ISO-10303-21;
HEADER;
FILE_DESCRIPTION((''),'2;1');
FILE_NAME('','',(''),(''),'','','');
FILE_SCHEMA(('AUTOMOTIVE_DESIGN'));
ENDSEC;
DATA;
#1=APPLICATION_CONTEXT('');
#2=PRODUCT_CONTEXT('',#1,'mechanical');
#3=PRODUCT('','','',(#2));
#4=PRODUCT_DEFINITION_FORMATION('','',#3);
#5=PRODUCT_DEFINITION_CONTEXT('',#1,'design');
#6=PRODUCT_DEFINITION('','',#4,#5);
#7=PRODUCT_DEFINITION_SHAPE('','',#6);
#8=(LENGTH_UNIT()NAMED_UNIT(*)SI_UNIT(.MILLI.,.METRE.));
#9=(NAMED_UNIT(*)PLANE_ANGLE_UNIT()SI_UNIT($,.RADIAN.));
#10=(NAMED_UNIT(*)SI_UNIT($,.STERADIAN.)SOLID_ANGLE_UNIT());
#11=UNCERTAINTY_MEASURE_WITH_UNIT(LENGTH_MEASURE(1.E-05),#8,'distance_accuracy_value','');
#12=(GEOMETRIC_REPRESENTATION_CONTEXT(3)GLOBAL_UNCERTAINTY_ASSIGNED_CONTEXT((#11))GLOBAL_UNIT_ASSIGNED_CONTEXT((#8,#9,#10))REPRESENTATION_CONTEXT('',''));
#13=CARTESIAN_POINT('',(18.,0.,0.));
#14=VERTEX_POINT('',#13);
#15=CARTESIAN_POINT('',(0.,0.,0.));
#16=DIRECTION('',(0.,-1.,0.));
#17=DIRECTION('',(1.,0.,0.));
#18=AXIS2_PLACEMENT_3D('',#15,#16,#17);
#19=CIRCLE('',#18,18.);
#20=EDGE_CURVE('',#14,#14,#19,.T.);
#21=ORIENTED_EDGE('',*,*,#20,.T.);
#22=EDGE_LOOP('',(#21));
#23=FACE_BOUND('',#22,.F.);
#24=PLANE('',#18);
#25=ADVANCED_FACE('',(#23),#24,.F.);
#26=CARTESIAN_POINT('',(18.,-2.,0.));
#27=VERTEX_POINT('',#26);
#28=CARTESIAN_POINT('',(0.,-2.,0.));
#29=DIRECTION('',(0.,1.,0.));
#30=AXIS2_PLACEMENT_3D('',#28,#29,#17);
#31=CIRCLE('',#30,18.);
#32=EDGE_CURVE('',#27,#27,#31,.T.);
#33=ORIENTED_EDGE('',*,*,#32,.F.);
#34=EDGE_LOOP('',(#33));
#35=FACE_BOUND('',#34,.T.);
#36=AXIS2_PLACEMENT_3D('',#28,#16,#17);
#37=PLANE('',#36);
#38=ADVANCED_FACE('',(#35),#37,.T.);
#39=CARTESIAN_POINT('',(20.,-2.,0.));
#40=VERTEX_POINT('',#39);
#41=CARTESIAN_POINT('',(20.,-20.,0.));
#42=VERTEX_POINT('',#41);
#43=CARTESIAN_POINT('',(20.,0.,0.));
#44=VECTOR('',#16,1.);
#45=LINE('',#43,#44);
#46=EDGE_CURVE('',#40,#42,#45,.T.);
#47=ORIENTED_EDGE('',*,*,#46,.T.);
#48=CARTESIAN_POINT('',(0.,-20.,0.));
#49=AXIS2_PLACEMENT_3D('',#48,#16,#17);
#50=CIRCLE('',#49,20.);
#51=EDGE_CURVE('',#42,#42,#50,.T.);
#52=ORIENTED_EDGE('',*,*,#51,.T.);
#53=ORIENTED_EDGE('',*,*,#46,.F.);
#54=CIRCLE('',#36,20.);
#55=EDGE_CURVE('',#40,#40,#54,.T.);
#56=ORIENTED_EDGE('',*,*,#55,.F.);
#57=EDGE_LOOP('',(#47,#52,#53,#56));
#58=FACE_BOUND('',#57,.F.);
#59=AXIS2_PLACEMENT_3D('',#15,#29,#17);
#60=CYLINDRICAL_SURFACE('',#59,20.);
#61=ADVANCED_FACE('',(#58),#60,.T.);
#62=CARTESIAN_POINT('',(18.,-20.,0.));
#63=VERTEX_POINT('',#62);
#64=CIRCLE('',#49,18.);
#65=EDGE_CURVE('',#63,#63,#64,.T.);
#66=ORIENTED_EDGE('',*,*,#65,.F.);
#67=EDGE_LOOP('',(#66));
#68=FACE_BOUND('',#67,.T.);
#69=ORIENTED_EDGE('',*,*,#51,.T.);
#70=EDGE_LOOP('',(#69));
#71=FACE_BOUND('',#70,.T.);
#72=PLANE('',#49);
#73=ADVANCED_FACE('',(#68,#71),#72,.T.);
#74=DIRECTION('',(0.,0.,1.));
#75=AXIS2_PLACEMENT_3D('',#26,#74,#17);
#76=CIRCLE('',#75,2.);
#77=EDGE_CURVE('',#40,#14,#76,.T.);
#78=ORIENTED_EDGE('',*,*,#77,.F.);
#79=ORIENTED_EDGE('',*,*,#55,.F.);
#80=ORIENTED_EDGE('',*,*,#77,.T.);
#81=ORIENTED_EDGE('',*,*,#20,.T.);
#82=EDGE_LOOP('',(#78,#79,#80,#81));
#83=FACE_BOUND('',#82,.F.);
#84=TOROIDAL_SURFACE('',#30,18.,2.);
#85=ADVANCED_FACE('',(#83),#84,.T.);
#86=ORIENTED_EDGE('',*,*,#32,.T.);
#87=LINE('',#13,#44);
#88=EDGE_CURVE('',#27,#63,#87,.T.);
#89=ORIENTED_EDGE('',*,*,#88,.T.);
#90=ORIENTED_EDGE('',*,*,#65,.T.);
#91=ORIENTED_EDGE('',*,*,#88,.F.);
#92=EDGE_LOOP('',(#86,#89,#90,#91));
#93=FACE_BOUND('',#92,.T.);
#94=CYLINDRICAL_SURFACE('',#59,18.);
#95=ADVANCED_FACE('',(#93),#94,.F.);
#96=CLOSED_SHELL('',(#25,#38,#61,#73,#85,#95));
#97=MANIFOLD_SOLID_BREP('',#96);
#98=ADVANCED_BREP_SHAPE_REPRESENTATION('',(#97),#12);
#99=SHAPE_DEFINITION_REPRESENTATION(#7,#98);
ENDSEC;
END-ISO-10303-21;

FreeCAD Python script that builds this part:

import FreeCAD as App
import Part
import Sketcher
from FreeCAD import Vector


def edges_at(feature, points):
    """Names of the edges that pass closest to the given points."""
    edges = feature.Shape.Edges
    near = lambda p: min(range(len(edges)), key=lambda i: edges[i].distToShape(Part.Vertex(*p))[0])
    return sorted({f"Edge{near(p) + 1}" for p in points})


def faces_at(feature, points):
    """Names of the faces that lie closest to the given points."""
    faces = feature.Shape.Faces
    near = lambda p: min(range(len(faces)), key=lambda i: faces[i].distToShape(Part.Vertex(*p))[0])
    return sorted({f"Face{near(p) + 1}" for p in points})

doc = App.newDocument("Part")
params = doc.addObject("Spreadsheet::Sheet", "Params")
for row, (alias, value) in enumerate([
    ("sketch1_diameter", "40 mm"),
    ("pad1_length", "20 mm"),
    ("thickness_wall", "2 mm"),
    ("fillet_radius", "2 mm"),
], start=1):
    params.set(f"A{row}", alias)
    params.set(f"B{row}", "=" + value)
    params.setAlias(f"B{row}", alias)

body = doc.addObject("PartDesign::Body", "Body")

# Sketch on XZ plane
sketch1 = body.newObject("Sketcher::SketchObject", "Sketch")
sketch1.AttachmentSupport = (doc.getObject("XZ_Plane"), [""])
sketch1.MapMode = "FlatFace"
sketch1.addGeometry(Part.Circle(Vector(0, 0, 0), Vector(0, 0, 1), 20), False)
sketch1.addConstraint(Sketcher.Constraint("Coincident", 0, 3, -1, 1))
sketch1.addConstraint(Sketcher.Constraint("Diameter", 0, 40.0))
sketch1.setExpression("Constraints[1]", "Params.sketch1_diameter")
pad1 = body.newObject("PartDesign::Pad", "Pad")
pad1.Profile = sketch1
pad1.setExpression("Length", "Params.pad1_length")
doc.recompute()

thickness = body.newObject("PartDesign::Thickness", "Thickness")
thickness.Base = (pad1, faces_at(pad1, [(0, -20, 0)]))
thickness.setExpression("Value", "Params.thickness_wall")
thickness.Reversed = True
thickness.Join = "Arc"
doc.recompute()

fillet = body.newObject("PartDesign::Fillet", "Fillet")
fillet.Base = (thickness, edges_at(thickness, [(-20, 0, 0)]))
fillet.setExpression("Radius", "Params.fillet_radius")

doc.recompute()
